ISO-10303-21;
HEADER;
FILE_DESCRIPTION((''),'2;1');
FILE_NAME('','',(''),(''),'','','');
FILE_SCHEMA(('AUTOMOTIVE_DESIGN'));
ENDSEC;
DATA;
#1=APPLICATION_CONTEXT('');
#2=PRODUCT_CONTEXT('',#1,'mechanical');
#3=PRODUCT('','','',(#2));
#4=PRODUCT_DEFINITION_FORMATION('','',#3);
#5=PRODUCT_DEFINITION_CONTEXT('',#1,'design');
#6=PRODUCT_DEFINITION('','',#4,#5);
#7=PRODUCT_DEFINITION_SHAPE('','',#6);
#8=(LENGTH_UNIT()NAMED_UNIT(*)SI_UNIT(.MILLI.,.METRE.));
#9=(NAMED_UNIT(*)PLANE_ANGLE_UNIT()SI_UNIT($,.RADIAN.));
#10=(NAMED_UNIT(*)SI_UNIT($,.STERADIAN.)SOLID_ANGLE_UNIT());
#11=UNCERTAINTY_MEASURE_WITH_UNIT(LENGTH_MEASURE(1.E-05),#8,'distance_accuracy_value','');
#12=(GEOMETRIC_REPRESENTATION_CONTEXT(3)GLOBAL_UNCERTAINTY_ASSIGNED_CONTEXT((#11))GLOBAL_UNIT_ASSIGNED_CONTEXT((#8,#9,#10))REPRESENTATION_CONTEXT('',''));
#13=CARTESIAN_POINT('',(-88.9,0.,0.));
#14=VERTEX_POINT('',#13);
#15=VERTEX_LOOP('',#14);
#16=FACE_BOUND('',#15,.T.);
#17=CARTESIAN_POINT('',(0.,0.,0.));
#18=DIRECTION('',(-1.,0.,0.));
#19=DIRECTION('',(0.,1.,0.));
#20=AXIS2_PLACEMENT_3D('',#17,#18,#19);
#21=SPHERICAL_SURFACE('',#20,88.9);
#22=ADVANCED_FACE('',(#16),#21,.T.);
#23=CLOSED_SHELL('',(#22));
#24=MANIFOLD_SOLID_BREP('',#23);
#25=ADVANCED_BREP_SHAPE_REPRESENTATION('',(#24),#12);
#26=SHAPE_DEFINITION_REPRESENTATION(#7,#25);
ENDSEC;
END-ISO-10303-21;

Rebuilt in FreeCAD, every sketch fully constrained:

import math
import FreeCAD as App
import Part
import Sketcher

V = App.Vector
Q = App.Units.Quantity

doc = App.newDocument("Part")
body = doc.addObject("PartDesign::Body", "Body")

# Sketch on XY plane
sketch1 = doc.addObject("Sketcher::SketchObject", "Sketch")
body.addObject(sketch1)
sketch1.AttachmentSupport = (doc.XY_Plane, [""])
sketch1.MapMode = "FlatFace"
sketch1.addGeometry([
    Part.LineSegment(V(-89, 0, 0), V(89, 0, 0)),
    Part.ArcOfCircle(Part.Circle(V(0, 0, 0), V(0, 0, 1), 89), math.radians(0), math.radians(180)),
], False)
sketch1.addConstraint([
    Sketcher.Constraint("Coincident", 0, 1, 1, 2),
    Sketcher.Constraint("Coincident", 1, 1, 0, 2),
    Sketcher.Constraint("Horizontal", 0),
    Sketcher.Constraint("Coincident", 1, 3, -1, 1),
    Sketcher.Constraint("PointOnObject", 0, 1, -1),
    Sketcher.Constraint("Radius", 1, Q("3.5 in")),
])
revolution = doc.addObject("PartDesign::Revolution", "Revolution")
body.addObject(revolution)
revolution.Profile = sketch1
revolution.ReferenceAxis = (sketch1, ["H_Axis"])
revolution.Angle = 360

doc.recompute()
